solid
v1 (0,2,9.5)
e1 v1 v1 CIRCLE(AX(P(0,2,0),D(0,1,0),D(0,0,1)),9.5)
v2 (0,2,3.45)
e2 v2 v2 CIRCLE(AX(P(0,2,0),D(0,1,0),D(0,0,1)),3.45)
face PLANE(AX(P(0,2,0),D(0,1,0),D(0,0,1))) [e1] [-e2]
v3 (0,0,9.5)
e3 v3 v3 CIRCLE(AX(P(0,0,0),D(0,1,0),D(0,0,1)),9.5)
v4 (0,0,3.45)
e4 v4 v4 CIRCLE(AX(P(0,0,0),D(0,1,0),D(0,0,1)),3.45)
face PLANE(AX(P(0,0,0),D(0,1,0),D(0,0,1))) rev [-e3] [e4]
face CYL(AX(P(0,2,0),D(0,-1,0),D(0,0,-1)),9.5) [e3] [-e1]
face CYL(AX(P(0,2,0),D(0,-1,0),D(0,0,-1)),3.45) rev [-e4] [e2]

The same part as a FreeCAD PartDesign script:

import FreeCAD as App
import Part
import Sketcher
Q = App.Units.Quantity

doc = App.newDocument("Part")
body = doc.addObject("PartDesign::Body", "Body")

# Sketch on XZ plane
sketch1 = body.newObject("Sketcher::SketchObject", "Sketch")
sketch1.AttachmentSupport = (doc.getObject("XZ_Plane"), [""])
sketch1.MapMode = "FlatFace"
sketch1.addGeometry(Part.Circle(App.Vector(0, 0, 0), App.Vector(0, 0, 1), 9.5), False)
sketch1.addGeometry(Part.Circle(App.Vector(0, 0, 0), App.Vector(0, 0, 1), 3.45), False)
sketch1.addConstraint(Sketcher.Constraint("Coincident", 0, 3, -1, 1))
sketch1.addConstraint(Sketcher.Constraint("Coincident", 1, 3, -1, 1))
sketch1.addConstraint(Sketcher.Constraint("Diameter", 0, Q("19 mm")))
sketch1.addConstraint(Sketcher.Constraint("Diameter", 1, Q("6.9 mm")))
pad1 = body.newObject("PartDesign::Pad", "Pad")
pad1.Profile = sketch1
pad1.Length = 2
pad1.Reversed = True

doc.recompute()
